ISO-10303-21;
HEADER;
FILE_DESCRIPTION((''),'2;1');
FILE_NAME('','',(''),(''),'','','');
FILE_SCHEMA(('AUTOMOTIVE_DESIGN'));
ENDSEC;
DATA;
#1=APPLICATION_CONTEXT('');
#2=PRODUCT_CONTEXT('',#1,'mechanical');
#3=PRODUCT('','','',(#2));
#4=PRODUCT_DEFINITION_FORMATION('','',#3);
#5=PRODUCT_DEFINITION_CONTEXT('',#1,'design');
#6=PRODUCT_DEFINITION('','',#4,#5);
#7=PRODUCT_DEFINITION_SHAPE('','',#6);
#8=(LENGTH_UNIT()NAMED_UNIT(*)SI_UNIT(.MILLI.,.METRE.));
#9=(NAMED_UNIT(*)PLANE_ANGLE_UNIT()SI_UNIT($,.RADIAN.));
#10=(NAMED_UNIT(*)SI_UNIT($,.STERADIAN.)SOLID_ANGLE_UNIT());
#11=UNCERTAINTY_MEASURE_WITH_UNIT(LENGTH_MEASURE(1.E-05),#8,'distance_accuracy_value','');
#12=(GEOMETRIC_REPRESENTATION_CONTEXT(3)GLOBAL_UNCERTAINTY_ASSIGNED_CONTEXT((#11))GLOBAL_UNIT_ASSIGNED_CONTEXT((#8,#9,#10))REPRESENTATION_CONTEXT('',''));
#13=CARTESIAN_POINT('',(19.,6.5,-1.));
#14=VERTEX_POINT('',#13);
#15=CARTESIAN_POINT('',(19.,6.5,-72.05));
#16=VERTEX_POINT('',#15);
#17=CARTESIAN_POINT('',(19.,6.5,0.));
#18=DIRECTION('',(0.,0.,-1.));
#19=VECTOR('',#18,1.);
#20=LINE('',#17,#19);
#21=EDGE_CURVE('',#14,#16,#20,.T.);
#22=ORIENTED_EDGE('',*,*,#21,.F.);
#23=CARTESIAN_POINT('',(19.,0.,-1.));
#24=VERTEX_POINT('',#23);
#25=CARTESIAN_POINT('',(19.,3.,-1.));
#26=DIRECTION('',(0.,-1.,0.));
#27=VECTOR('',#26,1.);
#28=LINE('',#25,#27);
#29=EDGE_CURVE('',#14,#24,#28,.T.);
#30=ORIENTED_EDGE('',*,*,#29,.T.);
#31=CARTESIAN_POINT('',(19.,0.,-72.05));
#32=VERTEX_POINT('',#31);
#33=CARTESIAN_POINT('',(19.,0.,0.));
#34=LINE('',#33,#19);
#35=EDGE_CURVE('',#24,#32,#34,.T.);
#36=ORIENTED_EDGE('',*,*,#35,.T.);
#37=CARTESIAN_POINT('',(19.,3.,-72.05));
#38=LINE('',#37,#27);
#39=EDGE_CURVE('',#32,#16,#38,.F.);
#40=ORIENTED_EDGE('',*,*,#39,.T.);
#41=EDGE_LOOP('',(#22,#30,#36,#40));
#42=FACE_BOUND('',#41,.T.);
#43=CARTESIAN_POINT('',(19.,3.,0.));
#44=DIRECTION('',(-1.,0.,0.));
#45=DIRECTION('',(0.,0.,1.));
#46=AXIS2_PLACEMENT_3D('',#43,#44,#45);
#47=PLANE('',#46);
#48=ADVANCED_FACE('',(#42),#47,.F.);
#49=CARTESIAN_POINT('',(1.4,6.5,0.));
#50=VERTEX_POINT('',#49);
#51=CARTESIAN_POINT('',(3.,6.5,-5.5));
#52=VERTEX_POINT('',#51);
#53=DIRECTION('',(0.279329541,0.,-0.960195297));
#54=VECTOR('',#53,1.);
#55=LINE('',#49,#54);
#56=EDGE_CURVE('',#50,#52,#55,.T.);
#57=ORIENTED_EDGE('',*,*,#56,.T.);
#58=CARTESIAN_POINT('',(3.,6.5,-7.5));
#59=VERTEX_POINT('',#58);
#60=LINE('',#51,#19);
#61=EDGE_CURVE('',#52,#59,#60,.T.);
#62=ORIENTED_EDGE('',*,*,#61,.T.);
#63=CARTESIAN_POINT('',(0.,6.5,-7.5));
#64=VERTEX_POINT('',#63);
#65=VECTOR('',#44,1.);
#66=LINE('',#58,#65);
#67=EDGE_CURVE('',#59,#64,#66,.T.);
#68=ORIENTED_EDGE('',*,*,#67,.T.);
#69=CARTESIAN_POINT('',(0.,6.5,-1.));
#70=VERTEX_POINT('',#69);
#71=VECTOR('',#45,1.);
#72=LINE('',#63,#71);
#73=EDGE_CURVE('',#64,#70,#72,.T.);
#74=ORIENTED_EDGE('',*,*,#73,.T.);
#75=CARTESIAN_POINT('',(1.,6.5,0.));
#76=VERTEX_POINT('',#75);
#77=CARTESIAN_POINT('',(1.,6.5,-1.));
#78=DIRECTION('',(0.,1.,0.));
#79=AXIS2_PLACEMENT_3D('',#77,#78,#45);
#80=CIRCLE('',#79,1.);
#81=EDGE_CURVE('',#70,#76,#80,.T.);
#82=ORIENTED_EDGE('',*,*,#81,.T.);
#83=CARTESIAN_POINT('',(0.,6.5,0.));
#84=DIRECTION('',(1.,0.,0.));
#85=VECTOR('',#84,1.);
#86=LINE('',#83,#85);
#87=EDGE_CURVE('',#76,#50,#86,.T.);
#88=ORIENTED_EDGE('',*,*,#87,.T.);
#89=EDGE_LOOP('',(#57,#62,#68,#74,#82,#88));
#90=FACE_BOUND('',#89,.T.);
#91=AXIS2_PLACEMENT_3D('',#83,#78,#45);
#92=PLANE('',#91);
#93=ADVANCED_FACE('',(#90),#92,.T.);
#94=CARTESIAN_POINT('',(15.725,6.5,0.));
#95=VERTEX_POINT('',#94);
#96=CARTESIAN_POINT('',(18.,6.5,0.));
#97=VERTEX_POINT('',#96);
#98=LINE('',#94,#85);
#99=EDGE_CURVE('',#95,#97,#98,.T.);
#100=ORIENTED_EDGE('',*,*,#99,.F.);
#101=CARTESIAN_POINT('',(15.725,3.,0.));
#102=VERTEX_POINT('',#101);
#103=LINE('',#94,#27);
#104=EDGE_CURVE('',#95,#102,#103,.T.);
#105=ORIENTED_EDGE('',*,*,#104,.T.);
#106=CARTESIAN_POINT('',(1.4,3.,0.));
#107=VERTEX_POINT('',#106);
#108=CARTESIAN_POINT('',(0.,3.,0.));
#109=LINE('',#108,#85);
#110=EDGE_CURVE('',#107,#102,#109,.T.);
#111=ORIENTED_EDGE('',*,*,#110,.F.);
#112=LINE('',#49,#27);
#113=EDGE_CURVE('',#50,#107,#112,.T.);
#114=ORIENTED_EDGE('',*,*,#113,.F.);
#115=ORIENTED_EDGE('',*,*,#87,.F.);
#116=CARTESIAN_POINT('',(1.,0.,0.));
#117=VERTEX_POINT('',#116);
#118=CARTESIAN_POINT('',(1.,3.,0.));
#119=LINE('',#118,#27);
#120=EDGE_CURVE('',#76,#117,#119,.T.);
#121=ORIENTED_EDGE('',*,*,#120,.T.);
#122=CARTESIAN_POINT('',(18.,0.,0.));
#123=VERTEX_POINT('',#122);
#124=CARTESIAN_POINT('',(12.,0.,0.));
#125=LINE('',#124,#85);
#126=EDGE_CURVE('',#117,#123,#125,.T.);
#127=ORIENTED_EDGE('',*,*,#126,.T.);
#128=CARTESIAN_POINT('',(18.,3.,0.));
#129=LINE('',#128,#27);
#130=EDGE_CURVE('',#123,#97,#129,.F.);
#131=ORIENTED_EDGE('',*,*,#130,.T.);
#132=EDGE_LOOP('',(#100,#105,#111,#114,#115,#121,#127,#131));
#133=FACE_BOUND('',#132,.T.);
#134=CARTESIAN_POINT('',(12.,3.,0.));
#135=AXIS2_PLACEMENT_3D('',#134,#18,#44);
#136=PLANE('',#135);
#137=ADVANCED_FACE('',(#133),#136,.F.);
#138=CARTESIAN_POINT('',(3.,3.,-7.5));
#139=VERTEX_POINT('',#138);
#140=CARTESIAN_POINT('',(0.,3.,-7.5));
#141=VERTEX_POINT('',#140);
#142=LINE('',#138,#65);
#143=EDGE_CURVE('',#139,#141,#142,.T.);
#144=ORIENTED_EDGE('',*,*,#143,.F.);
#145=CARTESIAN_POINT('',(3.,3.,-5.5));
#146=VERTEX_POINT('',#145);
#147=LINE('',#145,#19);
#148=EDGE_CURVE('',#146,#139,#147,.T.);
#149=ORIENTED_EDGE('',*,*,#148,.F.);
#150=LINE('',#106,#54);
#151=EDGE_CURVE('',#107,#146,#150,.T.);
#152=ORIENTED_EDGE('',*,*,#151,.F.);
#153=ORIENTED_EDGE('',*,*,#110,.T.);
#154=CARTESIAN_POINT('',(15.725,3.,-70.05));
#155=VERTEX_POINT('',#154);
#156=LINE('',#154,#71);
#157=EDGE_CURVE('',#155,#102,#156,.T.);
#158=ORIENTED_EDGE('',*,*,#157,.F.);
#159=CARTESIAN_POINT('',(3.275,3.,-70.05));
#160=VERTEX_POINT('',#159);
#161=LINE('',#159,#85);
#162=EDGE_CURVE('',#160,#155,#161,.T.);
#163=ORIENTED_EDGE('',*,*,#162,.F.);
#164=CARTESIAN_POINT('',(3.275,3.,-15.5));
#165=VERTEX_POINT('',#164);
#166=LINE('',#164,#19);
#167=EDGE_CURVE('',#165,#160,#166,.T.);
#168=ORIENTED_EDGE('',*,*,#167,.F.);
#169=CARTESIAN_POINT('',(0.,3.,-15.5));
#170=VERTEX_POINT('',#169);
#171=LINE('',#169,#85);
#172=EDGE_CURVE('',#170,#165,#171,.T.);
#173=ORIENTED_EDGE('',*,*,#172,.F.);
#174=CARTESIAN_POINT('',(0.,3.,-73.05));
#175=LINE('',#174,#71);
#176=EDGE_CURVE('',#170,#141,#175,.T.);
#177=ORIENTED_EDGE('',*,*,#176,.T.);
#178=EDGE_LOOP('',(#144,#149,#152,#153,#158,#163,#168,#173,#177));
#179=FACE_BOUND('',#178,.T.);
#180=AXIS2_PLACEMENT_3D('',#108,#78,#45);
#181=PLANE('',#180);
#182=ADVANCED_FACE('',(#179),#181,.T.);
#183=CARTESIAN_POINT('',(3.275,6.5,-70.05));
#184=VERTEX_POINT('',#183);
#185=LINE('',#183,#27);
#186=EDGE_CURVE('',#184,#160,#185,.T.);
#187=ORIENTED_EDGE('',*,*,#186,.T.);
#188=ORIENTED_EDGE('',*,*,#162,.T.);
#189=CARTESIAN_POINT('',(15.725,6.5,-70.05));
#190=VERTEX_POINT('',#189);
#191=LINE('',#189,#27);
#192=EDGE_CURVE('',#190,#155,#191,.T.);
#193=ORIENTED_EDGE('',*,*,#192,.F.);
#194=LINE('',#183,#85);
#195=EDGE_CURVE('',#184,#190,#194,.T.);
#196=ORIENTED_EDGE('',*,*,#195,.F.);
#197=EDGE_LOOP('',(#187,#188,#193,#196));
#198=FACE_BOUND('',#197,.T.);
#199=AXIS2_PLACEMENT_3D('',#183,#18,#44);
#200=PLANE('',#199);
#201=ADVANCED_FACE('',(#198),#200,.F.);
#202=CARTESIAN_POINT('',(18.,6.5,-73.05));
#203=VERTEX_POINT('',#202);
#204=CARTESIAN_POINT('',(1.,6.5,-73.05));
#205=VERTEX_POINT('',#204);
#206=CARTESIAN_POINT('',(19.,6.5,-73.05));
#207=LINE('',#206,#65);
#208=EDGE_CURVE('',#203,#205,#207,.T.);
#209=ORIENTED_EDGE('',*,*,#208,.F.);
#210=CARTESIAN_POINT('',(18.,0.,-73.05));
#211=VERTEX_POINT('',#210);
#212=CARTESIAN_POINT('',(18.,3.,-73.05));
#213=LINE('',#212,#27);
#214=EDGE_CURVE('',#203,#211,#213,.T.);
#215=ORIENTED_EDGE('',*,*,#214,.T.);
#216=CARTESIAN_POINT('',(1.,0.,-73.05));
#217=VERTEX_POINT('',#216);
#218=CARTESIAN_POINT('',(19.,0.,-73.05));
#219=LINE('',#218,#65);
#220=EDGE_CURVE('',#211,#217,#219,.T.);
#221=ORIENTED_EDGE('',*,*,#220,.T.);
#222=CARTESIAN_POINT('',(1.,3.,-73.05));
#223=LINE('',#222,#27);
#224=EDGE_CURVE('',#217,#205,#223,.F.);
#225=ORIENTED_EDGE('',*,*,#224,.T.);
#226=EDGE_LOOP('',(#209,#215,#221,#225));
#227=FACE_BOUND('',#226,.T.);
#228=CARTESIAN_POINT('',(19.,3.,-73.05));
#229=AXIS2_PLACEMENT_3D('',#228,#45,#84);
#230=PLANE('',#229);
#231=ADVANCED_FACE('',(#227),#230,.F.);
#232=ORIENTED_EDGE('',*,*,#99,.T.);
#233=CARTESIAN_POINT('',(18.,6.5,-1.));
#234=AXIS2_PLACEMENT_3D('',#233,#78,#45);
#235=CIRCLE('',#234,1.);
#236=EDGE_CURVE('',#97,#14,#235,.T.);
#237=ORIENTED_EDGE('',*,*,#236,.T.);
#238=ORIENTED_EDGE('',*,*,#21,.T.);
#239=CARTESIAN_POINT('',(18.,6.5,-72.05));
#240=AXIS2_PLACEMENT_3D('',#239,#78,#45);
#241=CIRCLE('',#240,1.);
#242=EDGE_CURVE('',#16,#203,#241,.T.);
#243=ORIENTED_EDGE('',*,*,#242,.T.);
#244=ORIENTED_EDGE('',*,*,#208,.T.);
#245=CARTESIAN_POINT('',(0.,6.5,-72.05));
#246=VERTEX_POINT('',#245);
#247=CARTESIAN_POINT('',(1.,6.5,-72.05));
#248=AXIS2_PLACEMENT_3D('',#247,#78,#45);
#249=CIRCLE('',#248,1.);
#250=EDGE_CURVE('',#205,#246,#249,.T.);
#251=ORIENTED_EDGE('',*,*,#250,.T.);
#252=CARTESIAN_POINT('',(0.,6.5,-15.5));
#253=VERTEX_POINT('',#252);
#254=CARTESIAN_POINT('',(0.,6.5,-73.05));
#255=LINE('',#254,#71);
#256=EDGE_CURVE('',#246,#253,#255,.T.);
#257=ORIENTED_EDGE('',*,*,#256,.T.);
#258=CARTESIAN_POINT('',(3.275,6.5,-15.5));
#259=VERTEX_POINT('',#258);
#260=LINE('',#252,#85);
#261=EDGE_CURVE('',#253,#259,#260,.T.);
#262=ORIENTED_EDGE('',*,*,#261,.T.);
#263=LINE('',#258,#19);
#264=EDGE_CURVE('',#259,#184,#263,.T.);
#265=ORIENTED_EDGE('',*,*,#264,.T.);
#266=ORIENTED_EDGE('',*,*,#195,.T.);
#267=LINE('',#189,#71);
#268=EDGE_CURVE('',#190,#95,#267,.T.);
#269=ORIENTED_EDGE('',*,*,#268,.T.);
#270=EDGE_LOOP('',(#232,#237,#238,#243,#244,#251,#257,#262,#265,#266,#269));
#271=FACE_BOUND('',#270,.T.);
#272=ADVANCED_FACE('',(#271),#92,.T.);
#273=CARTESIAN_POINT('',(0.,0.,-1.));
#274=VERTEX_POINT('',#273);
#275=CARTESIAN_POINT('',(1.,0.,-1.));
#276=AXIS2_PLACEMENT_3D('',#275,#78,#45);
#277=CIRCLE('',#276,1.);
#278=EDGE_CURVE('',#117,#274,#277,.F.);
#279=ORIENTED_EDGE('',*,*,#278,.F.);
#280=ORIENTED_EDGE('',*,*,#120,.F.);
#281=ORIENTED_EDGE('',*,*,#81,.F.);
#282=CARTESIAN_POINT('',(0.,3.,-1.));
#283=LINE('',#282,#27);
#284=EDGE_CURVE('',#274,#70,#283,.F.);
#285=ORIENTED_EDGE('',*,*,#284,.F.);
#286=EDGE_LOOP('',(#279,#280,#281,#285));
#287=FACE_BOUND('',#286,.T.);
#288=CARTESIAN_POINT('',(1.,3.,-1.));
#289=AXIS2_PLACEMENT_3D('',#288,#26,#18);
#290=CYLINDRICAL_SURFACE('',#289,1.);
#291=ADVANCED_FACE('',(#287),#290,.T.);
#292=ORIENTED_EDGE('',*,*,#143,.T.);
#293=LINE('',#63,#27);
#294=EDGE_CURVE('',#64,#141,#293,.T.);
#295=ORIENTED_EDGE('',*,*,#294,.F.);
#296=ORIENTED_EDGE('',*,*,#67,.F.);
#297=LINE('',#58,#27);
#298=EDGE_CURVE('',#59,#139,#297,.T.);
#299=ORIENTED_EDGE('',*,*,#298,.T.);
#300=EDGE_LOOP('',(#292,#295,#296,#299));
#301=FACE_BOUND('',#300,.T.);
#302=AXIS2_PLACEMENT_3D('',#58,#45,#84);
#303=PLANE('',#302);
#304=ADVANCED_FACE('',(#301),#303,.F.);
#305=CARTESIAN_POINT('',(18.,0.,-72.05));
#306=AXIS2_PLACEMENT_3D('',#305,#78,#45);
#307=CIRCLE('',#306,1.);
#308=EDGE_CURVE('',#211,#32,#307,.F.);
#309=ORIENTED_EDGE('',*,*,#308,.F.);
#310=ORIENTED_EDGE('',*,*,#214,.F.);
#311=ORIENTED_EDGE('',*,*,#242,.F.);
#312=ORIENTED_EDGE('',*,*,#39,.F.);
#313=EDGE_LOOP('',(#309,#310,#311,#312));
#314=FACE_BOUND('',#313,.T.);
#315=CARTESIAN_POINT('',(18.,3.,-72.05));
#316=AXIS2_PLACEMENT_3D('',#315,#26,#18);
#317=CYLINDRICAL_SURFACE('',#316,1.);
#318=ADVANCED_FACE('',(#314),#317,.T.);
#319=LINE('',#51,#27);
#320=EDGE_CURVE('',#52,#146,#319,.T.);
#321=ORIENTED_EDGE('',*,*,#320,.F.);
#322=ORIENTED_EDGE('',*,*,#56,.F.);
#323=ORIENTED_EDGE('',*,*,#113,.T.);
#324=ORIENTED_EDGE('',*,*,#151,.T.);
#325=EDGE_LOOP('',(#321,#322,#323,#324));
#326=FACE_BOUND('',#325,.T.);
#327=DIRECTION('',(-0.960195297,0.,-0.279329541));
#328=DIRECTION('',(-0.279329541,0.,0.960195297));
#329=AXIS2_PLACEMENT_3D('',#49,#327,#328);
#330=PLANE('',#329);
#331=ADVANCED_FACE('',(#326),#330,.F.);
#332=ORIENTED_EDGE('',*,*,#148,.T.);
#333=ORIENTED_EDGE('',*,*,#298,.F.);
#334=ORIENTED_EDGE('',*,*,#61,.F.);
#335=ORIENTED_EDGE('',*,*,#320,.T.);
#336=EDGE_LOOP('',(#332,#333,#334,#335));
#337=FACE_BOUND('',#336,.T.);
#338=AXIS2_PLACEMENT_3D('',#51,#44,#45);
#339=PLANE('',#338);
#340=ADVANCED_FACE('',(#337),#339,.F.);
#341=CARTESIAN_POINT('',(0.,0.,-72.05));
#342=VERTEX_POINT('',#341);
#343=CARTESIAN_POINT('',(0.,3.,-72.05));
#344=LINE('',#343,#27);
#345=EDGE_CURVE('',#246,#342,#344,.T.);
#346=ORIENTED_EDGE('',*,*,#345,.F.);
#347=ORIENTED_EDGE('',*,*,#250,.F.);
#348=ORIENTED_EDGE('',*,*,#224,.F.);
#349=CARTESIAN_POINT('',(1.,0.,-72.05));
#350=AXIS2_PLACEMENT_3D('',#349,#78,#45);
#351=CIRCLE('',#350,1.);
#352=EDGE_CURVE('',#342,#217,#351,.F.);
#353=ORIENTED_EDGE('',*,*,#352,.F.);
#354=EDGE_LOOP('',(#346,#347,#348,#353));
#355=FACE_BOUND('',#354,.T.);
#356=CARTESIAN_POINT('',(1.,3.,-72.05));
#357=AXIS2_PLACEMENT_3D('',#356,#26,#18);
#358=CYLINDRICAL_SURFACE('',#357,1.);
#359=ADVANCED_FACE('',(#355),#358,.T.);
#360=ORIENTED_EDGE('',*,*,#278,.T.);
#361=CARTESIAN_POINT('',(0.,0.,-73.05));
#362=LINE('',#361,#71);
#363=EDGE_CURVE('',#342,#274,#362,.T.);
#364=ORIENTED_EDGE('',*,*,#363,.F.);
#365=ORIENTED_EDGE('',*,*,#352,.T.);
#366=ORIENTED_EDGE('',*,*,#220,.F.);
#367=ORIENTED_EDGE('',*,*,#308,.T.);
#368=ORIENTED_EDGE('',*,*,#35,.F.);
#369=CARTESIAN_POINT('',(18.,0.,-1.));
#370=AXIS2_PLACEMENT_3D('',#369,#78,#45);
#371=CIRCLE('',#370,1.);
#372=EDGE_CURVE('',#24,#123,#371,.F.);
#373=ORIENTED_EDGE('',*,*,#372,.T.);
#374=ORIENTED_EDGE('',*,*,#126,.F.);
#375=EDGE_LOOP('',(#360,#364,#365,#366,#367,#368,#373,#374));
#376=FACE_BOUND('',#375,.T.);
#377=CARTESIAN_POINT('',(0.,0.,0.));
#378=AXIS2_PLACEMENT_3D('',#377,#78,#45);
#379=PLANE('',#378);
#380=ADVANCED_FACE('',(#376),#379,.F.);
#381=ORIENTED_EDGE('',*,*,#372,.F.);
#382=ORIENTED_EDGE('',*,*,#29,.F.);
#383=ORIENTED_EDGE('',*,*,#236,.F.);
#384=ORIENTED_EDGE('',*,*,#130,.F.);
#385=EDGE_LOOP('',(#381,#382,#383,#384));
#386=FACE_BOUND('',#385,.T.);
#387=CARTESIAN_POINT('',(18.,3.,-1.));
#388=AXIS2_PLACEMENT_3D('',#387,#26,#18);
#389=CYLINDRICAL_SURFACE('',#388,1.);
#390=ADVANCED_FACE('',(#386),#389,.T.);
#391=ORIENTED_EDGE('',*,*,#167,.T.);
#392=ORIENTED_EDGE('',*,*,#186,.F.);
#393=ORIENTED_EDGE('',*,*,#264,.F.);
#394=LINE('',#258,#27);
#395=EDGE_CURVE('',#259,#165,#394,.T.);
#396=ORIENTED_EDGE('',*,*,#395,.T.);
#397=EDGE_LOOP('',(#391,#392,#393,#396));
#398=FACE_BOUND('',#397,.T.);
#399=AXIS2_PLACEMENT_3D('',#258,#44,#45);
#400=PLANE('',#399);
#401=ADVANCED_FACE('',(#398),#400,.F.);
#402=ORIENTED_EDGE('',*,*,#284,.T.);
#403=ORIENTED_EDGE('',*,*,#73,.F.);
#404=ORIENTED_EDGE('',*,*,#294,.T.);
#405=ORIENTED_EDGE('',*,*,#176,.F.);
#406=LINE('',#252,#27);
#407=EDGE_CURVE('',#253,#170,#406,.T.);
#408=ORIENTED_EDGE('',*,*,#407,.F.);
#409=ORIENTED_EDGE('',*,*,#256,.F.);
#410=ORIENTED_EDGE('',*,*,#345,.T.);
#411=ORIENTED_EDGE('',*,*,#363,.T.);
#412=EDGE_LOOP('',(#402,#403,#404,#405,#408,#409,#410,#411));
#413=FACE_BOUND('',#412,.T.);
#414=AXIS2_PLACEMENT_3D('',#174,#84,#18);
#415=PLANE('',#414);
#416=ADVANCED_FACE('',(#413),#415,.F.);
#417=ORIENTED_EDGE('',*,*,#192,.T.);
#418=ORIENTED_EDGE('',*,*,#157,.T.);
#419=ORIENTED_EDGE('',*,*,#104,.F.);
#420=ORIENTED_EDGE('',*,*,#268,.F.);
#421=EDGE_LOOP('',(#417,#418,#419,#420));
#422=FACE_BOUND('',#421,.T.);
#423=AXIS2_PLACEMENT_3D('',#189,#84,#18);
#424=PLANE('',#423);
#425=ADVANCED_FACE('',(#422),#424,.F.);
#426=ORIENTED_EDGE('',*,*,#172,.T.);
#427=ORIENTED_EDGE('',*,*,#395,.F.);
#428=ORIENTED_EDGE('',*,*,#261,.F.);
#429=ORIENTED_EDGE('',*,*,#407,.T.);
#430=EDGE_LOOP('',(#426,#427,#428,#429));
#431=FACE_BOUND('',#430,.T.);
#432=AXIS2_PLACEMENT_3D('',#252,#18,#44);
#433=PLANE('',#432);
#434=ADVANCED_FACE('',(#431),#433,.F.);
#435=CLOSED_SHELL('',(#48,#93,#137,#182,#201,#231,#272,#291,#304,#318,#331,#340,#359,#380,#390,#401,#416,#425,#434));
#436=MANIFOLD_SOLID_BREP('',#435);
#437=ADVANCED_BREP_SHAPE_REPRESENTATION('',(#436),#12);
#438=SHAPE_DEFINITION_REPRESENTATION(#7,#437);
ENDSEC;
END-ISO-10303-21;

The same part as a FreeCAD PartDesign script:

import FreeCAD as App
import Part
import Sketcher

V = App.Vector


def edges_at(feature, points):
    """Names of the edges that pass closest to the given points."""
    edges = feature.Shape.Edges
    near = lambda p: min(range(len(edges)), key=lambda i: edges[i].distToShape(Part.Vertex(*p))[0])
    return sorted({f"Edge{near(p) + 1}" for p in points})

doc = App.newDocument("Part")
body = doc.addObject("PartDesign::Body", "Body")

sketch1 = doc.addObject("Sketcher::SketchObject", "Sketch")
body.addObject(sketch1)
sketch1.AttachmentSupport = (doc.XZ_Plane, [""])
sketch1.MapMode = "FlatFace"
sketch1.addGeometry(Part.LineSegment(V(0, 0, 0), V(19, 0, 0)), False)
sketch1.addGeometry(Part.LineSegment(V(19, 0, 0), V(19, -73, 0)), False)
sketch1.addGeometry(Part.LineSegment(V(19, -73, 0), V(0, -73, 0)), False)
sketch1.addGeometry(Part.LineSegment(V(0, -73, 0), V(0, 0, 0)), False)
sketch1.addConstraint(Sketcher.Constraint("Coincident", 0, 2, 1, 1))
sketch1.addConstraint(Sketcher.Constraint("Coincident", 1, 2, 2, 1))
sketch1.addConstraint(Sketcher.Constraint("Coincident", 2, 2, 3, 1))
sketch1.addConstraint(Sketcher.Constraint("Coincident", 3, 2, 0, 1))
sketch1.addConstraint(Sketcher.Constraint("Horizontal", 0))
sketch1.addConstraint(Sketcher.Constraint("Vertical", 1))
sketch1.addConstraint(Sketcher.Constraint("Horizontal", 2))
sketch1.addConstraint(Sketcher.Constraint("Vertical", 3))
sketch1.addConstraint(Sketcher.Constraint("Coincident", 3, 2, -1, 1))
sketch1.addConstraint(Sketcher.Constraint("DistanceX", 0, 1, 0, 2, 19.0))
sketch1.addConstraint(Sketcher.Constraint("DistanceY", 1, 2, 1, 1, 73.05))
pad1 = doc.addObject("PartDesign::Pad", "Pad")
body.addObject(pad1)
pad1.Profile = sketch1
pad1.Length = 3
pad1.Reversed = True

sketch2 = doc.addObject("Sketcher::SketchObject", "Sketch001")
body.addObject(sketch2)
sketch2.AttachmentSupport = (doc.XZ_Plane, [""])
sketch2.MapMode = "FlatFace"
sketch2.AttachmentOffset = App.Placement(V(0, 0, -3), App.Rotation())
sketch2.addGeometry(Part.LineSegment(V(1.4, 0, 0), V(3, -5.5, 0)), False)
sketch2.addGeometry(Part.LineSegment(V(3, -5.5, 0), V(3, -7.5, 0)), False)
sketch2.addGeometry(Part.LineSegment(V(3, -7.5, 0), V(0, -7.5, 0)), False)
sketch2.addGeometry(Part.LineSegment(V(0, -7.5, 0), V(0, 0, 0)), False)
sketch2.addGeometry(Part.LineSegment(V(0, 0, 0), V(1.4, 0, 0)), False)
sketch2.addGeometry(Part.LineSegment(V(0, -15.5, 0), V(3.3, -15.5, 0)), False)
sketch2.addGeometry(Part.LineSegment(V(3.3, -15.5, 0), V(3.3, -70, 0)), False)
sketch2.addGeometry(Part.LineSegment(V(3.3, -70, 0), V(15.7, -70, 0)), False)
sketch2.addGeometry(Part.LineSegment(V(15.7, -70, 0), V(15.7, 0, 0)), False)
sketch2.addGeometry(Part.LineSegment(V(15.7, 0, 0), V(19, 0, 0)), False)
sketch2.addGeometry(Part.LineSegment(V(19, 0, 0), V(19, -73, 0)), False)
sketch2.addGeometry(Part.LineSegment(V(19, -73, 0), V(0, -73, 0)), False)
sketch2.addGeometry(Part.LineSegment(V(0, -73, 0), V(0, -15.5, 0)), False)
sketch2.addConstraint(Sketcher.Constraint("Coincident", 0, 2, 1, 1))
sketch2.addConstraint(Sketcher.Constraint("Coincident", 1, 2, 2, 1))
sketch2.addConstraint(Sketcher.Constraint("Coincident", 2, 2, 3, 1))
sketch2.addConstraint(Sketcher.Constraint("Coincident", 3, 2, 4, 1))
sketch2.addConstraint(Sketcher.Constraint("Coincident", 4, 2, 0, 1))
sketch2.addConstraint(Sketcher.Constraint("Coincident", 5, 2, 6, 1))
sketch2.addConstraint(Sketcher.Constraint("Coincident", 6, 2, 7, 1))
sketch2.addConstraint(Sketcher.Constraint("Coincident", 7, 2, 8, 1))
sketch2.addConstraint(Sketcher.Constraint("Coincident", 8, 2, 9, 1))
sketch2.addConstraint(Sketcher.Constraint("Coincident", 9, 2, 10, 1))
sketch2.addConstraint(Sketcher.Constraint("Coincident", 10, 2, 11, 1))
sketch2.addConstraint(Sketcher.Constraint("Coincident", 11, 2, 12, 1))
sketch2.addConstraint(Sketcher.Constraint("Coincident", 12, 2, 5, 1))
sketch2.addConstraint(Sketcher.Constraint("Vertical", 1))
sketch2.addConstraint(Sketcher.Constraint("Horizontal", 2))
sketch2.addConstraint(Sketcher.Constraint("Vertical", 3))
sketch2.addConstraint(Sketcher.Constraint("Horizontal", 4))
sketch2.addConstraint(Sketcher.Constraint("Horizontal", 5))
sketch2.addConstraint(Sketcher.Constraint("Vertical", 6))
sketch2.addConstraint(Sketcher.Constraint("Horizontal", 7))
sketch2.addConstraint(Sketcher.Constraint("Vertical", 8))
sketch2.addConstraint(Sketcher.Constraint("Horizontal", 9))
sketch2.addConstraint(Sketcher.Constraint("Vertical", 10))
sketch2.addConstraint(Sketcher.Constraint("Horizontal", 11))
sketch2.addConstraint(Sketcher.Constraint("Vertical", 12))
sketch2.addConstraint(Sketcher.Constraint("Coincident", 3, 2, -1, 1))
sketch2.addConstraint(Sketcher.Constraint("PointOnObject", 8, 2, -1))
sketch2.addConstraint(Sketcher.Constraint("PointOnObject", 11, 2, -2))
sketch2.addConstraint(Sketcher.Constraint("Equal", 5, 9))
sketch2.addConstraint(Sketcher.Constraint("DistanceX", 2, 2, 2, 1, 3.0))
sketch2.addConstraint(Sketcher.Constraint("DistanceX", 11, 2, 11, 1, 19.0))
sketch2.addConstraint(Sketcher.Constraint("DistanceY", 1, 2, 1, 1, 2.0))
sketch2.addConstraint(Sketcher.Constraint("DistanceX", 4, 1, 4, 2, 1.4))
sketch2.addConstraint(Sketcher.Constraint("DistanceY", 3, 1, 3, 2, 7.5))
sketch2.addConstraint(Sketcher.Constraint("DistanceY", 5, 2, 1, 2, 8.0))
sketch2.addConstraint(Sketcher.Constraint("DistanceY", 10, 2, 7, 2, 3.0))
sketch2.addConstraint(Sketcher.Constraint("DistanceX", 7, 1, 7, 2, 12.45))
sketch2.addConstraint(Sketcher.Constraint("DistanceY", 6, 2, 6, 1, 54.55))
pad2 = doc.addObject("PartDesign::Pad", "Pad001")
body.addObject(pad2)
pad2.Profile = sketch2
pad2.Length = 3.5
pad2.Reversed = True
doc.recompute()

fillet = doc.addObject("PartDesign::Fillet", "Fillet")
body.addObject(fillet)
fillet.Base = (pad2, edges_at(pad2, [
    (0, 3.25, -73.05),
    (19, 3.25, -73.05),
    (19, 3.25, 0),
    (0, 3.25, 0),
]))
fillet.Radius = 1

doc.recompute()
